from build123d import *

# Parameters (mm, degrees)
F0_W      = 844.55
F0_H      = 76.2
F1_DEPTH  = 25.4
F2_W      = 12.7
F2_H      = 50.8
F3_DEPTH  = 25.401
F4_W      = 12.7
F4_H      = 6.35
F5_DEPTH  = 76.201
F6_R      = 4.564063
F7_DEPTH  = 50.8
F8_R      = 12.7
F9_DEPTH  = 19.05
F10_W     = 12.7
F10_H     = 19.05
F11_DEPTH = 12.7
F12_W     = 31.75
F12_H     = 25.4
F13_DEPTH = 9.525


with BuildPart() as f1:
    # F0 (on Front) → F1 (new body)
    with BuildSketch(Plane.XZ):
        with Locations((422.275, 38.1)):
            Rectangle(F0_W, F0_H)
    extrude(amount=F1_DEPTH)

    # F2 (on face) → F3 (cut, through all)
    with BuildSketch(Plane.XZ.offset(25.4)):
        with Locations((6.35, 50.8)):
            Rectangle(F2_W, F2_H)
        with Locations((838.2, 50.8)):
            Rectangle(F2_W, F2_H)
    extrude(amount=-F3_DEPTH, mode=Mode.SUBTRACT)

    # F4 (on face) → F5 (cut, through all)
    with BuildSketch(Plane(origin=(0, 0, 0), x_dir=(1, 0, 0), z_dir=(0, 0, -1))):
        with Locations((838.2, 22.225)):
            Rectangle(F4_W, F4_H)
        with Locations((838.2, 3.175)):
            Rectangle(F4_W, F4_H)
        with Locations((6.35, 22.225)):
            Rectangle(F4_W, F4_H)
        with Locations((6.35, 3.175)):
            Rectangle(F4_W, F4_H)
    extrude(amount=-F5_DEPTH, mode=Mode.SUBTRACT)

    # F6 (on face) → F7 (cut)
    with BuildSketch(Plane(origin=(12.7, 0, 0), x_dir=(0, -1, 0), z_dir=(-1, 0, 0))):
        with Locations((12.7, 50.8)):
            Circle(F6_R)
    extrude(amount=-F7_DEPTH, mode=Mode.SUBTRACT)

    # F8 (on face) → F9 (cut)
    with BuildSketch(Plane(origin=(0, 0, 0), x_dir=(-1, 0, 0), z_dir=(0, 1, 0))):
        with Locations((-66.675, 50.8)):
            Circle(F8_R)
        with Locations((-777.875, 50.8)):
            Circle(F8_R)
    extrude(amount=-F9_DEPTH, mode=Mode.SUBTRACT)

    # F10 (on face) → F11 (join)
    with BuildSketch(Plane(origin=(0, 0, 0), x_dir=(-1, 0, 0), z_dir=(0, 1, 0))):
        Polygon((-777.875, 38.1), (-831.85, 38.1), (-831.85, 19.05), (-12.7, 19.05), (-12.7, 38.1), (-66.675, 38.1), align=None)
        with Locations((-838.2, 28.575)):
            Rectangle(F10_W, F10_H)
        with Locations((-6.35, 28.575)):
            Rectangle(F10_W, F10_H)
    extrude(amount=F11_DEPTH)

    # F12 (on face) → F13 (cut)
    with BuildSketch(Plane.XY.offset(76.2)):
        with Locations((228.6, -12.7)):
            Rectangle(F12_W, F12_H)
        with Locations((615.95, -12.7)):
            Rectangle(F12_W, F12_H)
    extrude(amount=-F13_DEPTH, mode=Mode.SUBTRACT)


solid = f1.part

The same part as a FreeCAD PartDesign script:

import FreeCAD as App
import Part
import Sketcher

V = App.Vector
Q = App.Units.Quantity

doc = App.newDocument("Part")
params = doc.addObject("Spreadsheet::Sheet", "Params")
for row, (alias, value) in enumerate([
    ("sketch1_height", "3 in"),
    ("sketch1_width", "33.25 in"),
    ("pad1_length", "1 in"),
    ("sketch2_height", "2 in"),
    ("sketch2_width", "0.5 in"),
    ("sketch3_width", "0.5 in"),
    ("sketch3_height", "0.25 in"),
    ("sketch4_diameter", "0.359375 in"),
    ("pocket3_length", "2 in"),
    ("sketch5_diameter", "1 in"),
    ("pocket4_length", "0.75 in"),
    ("sketch6_width", "33.25 in"),
    ("sketch6_height", "0.75 in"),
    ("pad2_length", "0.5 in"),
    ("sketch7_height", "1 in"),
    ("sketch7_width", "1.25 in"),
    ("pocket5_length", "0.375 in"),
], start=1):
    params.set(f"A{row}", alias)
    params.set(f"B{row}", "=" + value)
    params.setAlias(f"B{row}", alias)

body = doc.addObject("PartDesign::Body", "Body")

# Sketch on XZ plane
sketch1 = body.newObject("Sketcher::SketchObject", "Sketch")
sketch1.AttachmentSupport = (doc.getObject("XZ_Plane"), [""])
sketch1.MapMode = "FlatFace"
sketch1.addGeometry([
    Part.LineSegment(V(0, 76, 0), V(0, 0, 0)),
    Part.LineSegment(V(0, 0, 0), V(845, 0, 0)),
    Part.LineSegment(V(845, 0, 0), V(845, 76, 0)),
    Part.LineSegment(V(845, 76, 0), V(0, 76, 0)),
], False)
sketch1.addConstraint([
    Sketcher.Constraint("Coincident", 0, 2, 1, 1),
    Sketcher.Constraint("Coincident", 1, 2, 2, 1),
    Sketcher.Constraint("Coincident", 2, 2, 3, 1),
    Sketcher.Constraint("Coincident", 3, 2, 0, 1),
    Sketcher.Constraint("Vertical", 0),
    Sketcher.Constraint("Horizontal", 1),
    Sketcher.Constraint("Vertical", 2),
    Sketcher.Constraint("Horizontal", 3),
    Sketcher.Constraint("Coincident", 0, 2, -1, 1),
    Sketcher.Constraint("DistanceY", 0, 2, 0, 1, Q("3 in")),
    Sketcher.Constraint("DistanceX", 1, 1, 1, 2, Q("33.25 in")),
])
sketch1.setExpression("Constraints[9]", "Params.sketch1_height")
sketch1.setExpression("Constraints[10]", "Params.sketch1_width")
pad1 = body.newObject("PartDesign::Pad", "Pad")
pad1.Profile = sketch1
pad1.setExpression("Length", "Params.pad1_length")

# Sketch on XZ plane
sketch2 = body.newObject("Sketcher::SketchObject", "Sketch001")
sketch2.AttachmentSupport = (doc.getObject("XZ_Plane"), [""])
sketch2.MapMode = "FlatFace"
sketch2.AttachmentOffset = App.Placement(V(0, 0, 1 * 25.4), App.Rotation())
sketch2.addGeometry([
    Part.LineSegment(V(0, 76, 0), V(0, 25, 0)),  # 0
    Part.LineSegment(V(0, 25, 0), V(13, 25, 0)),  # 1
    Part.LineSegment(V(13, 25, 0), V(13, 76, 0)),  # 2
    Part.LineSegment(V(13, 76, 0), V(0, 76, 0)),  # 3
    Part.LineSegment(V(832, 76, 0), V(832, 25, 0)),  # 4
    Part.LineSegment(V(832, 25, 0), V(845, 25, 0)),  # 5
    Part.LineSegment(V(845, 25, 0), V(845, 76, 0)),  # 6
    Part.LineSegment(V(845, 76, 0), V(832, 76, 0)),  # 7
], False)
sketch2.addConstraint([
    Sketcher.Constraint("Coincident", 0, 2, 1, 1),
    Sketcher.Constraint("Coincident", 1, 2, 2, 1),
    Sketcher.Constraint("Coincident", 2, 2, 3, 1),
    Sketcher.Constraint("Coincident", 3, 2, 0, 1),
    Sketcher.Constraint("Coincident", 4, 2, 5, 1),
    Sketcher.Constraint("Coincident", 5, 2, 6, 1),
    Sketcher.Constraint("Coincident", 6, 2, 7, 1),
    Sketcher.Constraint("Coincident", 7, 2, 4, 1),
    Sketcher.Constraint("Vertical", 0),
    Sketcher.Constraint("Horizontal", 1),
    Sketcher.Constraint("Vertical", 2),
    Sketcher.Constraint("Horizontal", 3),
    Sketcher.Constraint("Vertical", 4),
    Sketcher.Constraint("Horizontal", 5),
    Sketcher.Constraint("Vertical", 6),
    Sketcher.Constraint("Horizontal", 7),
    Sketcher.Constraint("PointOnObject", 0, 2, -2),
    Sketcher.Constraint("Horizontal", 1, 2, 4, 2),
    Sketcher.Constraint("Horizontal", 3, 2, 6, 2),
    Sketcher.Constraint("Equal", 3, 5),
    Sketcher.Constraint("DistanceY", 0, 2, 0, 1, Q("2 in")),
    Sketcher.Constraint("DistanceX", 1, 1, 1, 2, Q("0.5 in")),
    Sketcher.Constraint("DistanceY", -1, 1, 0, 2, Q("1 in")),
    Sketcher.Constraint("DistanceX", -1, 1, 4, 2, Q("32.75 in")),
])
sketch2.setExpression("Constraints[20]", "Params.sketch2_height")
sketch2.setExpression("Constraints[21]", "Params.sketch2_width")
pocket1 = body.newObject("PartDesign::Pocket", "Pocket")
pocket1.Profile = sketch2
pocket1.Type = "ThroughAll"

# Sketch on XY plane
sketch3 = body.newObject("Sketcher::SketchObject", "Sketch002")
sketch3.AttachmentSupport = (doc.getObject("XY_Plane"), [""])
sketch3.MapMode = "FlatFace"
sketch3.addGeometry([
    Part.LineSegment(V(832, -25, 0), V(832, -19, 0)),  # 0
    Part.LineSegment(V(832, -19, 0), V(845, -19, 0)),  # 1
    Part.LineSegment(V(845, -19, 0), V(845, -25, 0)),  # 2
    Part.LineSegment(V(845, -25, 0), V(832, -25, 0)),  # 3
    Part.LineSegment(V(832, -6, 0), V(832, 0, 0)),  # 4
    Part.LineSegment(V(832, 0, 0), V(845, 0, 0)),  # 5
    Part.LineSegment(V(845, 0, 0), V(845, -6, 0)),  # 6
    Part.LineSegment(V(845, -6, 0), V(832, -6, 0)),  # 7
    Part.LineSegment(V(0, -25, 0), V(0, -19, 0)),  # 8
    Part.LineSegment(V(0, -19, 0), V(13, -19, 0)),  # 9
    Part.LineSegment(V(13, -19, 0), V(13, -25, 0)),  # 10
    Part.LineSegment(V(13, -25, 0), V(0, -25, 0)),  # 11
    Part.LineSegment(V(0, -6, 0), V(0, 0, 0)),  # 12
    Part.LineSegment(V(0, 0, 0), V(13, 0, 0)),  # 13
    Part.LineSegment(V(13, 0, 0), V(13, -6, 0)),  # 14
    Part.LineSegment(V(13, -6, 0), V(0, -6, 0)),  # 15
], False)
sketch3.addConstraint([
    Sketcher.Constraint("Coincident", 0, 2, 1, 1),
    Sketcher.Constraint("Coincident", 1, 2, 2, 1),
    Sketcher.Constraint("Coincident", 2, 2, 3, 1),
    Sketcher.Constraint("Coincident", 3, 2, 0, 1),
    Sketcher.Constraint("Coincident", 4, 2, 5, 1),
    Sketcher.Constraint("Coincident", 5, 2, 6, 1),
    Sketcher.Constraint("Coincident", 6, 2, 7, 1),
    Sketcher.Constraint("Coincident", 7, 2, 4, 1),
    Sketcher.Constraint("Coincident", 8, 2, 9, 1),
    Sketcher.Constraint("Coincident", 9, 2, 10, 1),
    Sketcher.Constraint("Coincident", 10, 2, 11, 1),
    Sketcher.Constraint("Coincident", 11, 2, 8, 1),
    Sketcher.Constraint("Coincident", 12, 2, 13, 1),
    Sketcher.Constraint("Coincident", 13, 2, 14, 1),
    Sketcher.Constraint("Coincident", 14, 2, 15, 1),
    Sketcher.Constraint("Coincident", 15, 2, 12, 1),
    Sketcher.Constraint("Vertical", 0),
    Sketcher.Constraint("Horizontal", 1),
    Sketcher.Constraint("Vertical", 2),
    Sketcher.Constraint("Horizontal", 3),
    Sketcher.Constraint("Vertical", 4),
    Sketcher.Constraint("Horizontal", 5),
    Sketcher.Constraint("Vertical", 6),
    Sketcher.Constraint("Horizontal", 7),
    Sketcher.Constraint("Vertical", 8),
    Sketcher.Constraint("Horizontal", 9),
    Sketcher.Constraint("Vertical", 10),
    Sketcher.Constraint("Horizontal", 11),
    Sketcher.Constraint("Vertical", 12),
    Sketcher.Constraint("Horizontal", 13),
    Sketcher.Constraint("Vertical", 14),
    Sketcher.Constraint("Horizontal", 15),
    Sketcher.Constraint("Coincident", 12, 2, -1, 1),
    Sketcher.Constraint("PointOnObject", 4, 2, -1),
    Sketcher.Constraint("PointOnObject", 8, 2, -2),
    Sketcher.Constraint("Horizontal", 1, 2, 8, 2),
    Sketcher.Constraint("Horizontal", 3, 2, 10, 2),
    Sketcher.Constraint("Horizontal", 7, 2, 14, 2),
    Sketcher.Constraint("Vertical", 3, 2, 4, 2),
    Sketcher.Constraint("Vertical", 2, 2, 5, 2),
    Sketcher.Constraint("Vertical", 10, 2, 13, 2),
    Sketcher.Constraint("Equal", 7, 9),
    Sketcher.Constraint("Equal", 2, 4),
    Sketcher.Constraint("DistanceX", 1, 1, 1, 2, Q("0.5 in")),
    Sketcher.Constraint("DistanceY", 2, 2, -1, 1, Q("1 in")),
    Sketcher.Constraint("DistanceY", 0, 1, 0, 2, Q("0.25 in")),
    Sketcher.Constraint("DistanceX", -1, 1, 0, 2, Q("32.75 in")),
])
sketch3.setExpression("Constraints[43]", "Params.sketch3_width")
sketch3.setExpression("Constraints[45]", "Params.sketch3_height")
pocket2 = body.newObject("PartDesign::Pocket", "Pocket001")
pocket2.Profile = sketch3
pocket2.Type = "ThroughAll"
pocket2.Reversed = True

# Sketch on YZ plane
sketch4 = body.newObject("Sketcher::SketchObject", "Sketch003")
sketch4.AttachmentSupport = (doc.getObject("YZ_Plane"), [""])
sketch4.MapMode = "FlatFace"
sketch4.AttachmentOffset = App.Placement(V(0, 0, 0.5 * 25.4), App.Rotation())
sketch4.addGeometry(Part.Circle(V(-12.7, 50.8, 0), V(0, 0, 1), 4.6), False)
sketch4.addConstraint([
    Sketcher.Constraint("Diameter", 0, Q("0.359375 in")),
    Sketcher.Constraint("DistanceY", -1, 1, 0, 3, Q("2 in")),
    Sketcher.Constraint("DistanceX", 0, 3, -1, 1, Q("0.5 in")),
])
sketch4.setExpression("Constraints[0]", "Params.sketch4_diameter")
pocket3 = body.newObject("PartDesign::Pocket", "Pocket002")
pocket3.Profile = sketch4
pocket3.setExpression("Length", "Params.pocket3_length")
pocket3.Reversed = True

# Sketch on XZ plane
sketch5 = body.newObject("Sketcher::SketchObject", "Sketch004")
sketch5.AttachmentSupport = (doc.getObject("XZ_Plane"), [""])
sketch5.MapMode = "FlatFace"
sketch5.addGeometry([
    Part.Circle(V(67, 51, 0), V(0, 0, 1), 13),
    Part.Circle(V(778, 51, 0), V(0, 0, 1), 13),
], False)
sketch5.addConstraint([
    Sketcher.Constraint("Equal", 0, 1),
    Sketcher.Constraint("Horizontal", 0, 3, 1, 3),
    Sketcher.Constraint("Diameter", 0, Q("1 in")),
    Sketcher.Constraint("DistanceY", -1, 1, 0, 3, Q("2 in")),
    Sketcher.Constraint("DistanceX", 0, 3, 1, 3, Q("28 in")),
    Sketcher.Constraint("DistanceX", -1, 1, 0, 3, Q("2.625 in")),
])
sketch5.setExpression("Constraints[2]", "Params.sketch5_diameter")
pocket4 = body.newObject("PartDesign::Pocket", "Pocket003")
pocket4.Profile = sketch5
pocket4.setExpression("Length", "Params.pocket4_length")
pocket4.Reversed = True

# Sketch on XZ plane
sketch6 = body.newObject("Sketcher::SketchObject", "Sketch005")
sketch6.AttachmentSupport = (doc.getObject("XZ_Plane"), [""])
sketch6.MapMode = "FlatFace"
sketch6.addGeometry([
    Part.LineSegment(V(845, 38, 0), V(845, 19, 0)),
    Part.LineSegment(V(845, 19, 0), V(0, 19, 0)),
    Part.LineSegment(V(0, 19, 0), V(0, 38, 0)),
    Part.LineSegment(V(0, 38, 0), V(845, 38, 0)),
], False)
sketch6.addConstraint([
    Sketcher.Constraint("Coincident", 0, 2, 1, 1),
    Sketcher.Constraint("Coincident", 1, 2, 2, 1),
    Sketcher.Constraint("Coincident", 2, 2, 3, 1),
    Sketcher.Constraint("Coincident", 3, 2, 0, 1),
    Sketcher.Constraint("Vertical", 0),
    Sketcher.Constraint("Horizontal", 1),
    Sketcher.Constraint("Vertical", 2),
    Sketcher.Constraint("Horizontal", 3),
    Sketcher.Constraint("PointOnObject", 1, 2, -2),
    Sketcher.Constraint("DistanceX", 1, 2, 1, 1, Q("33.25 in")),
    Sketcher.Constraint("DistanceY", 0, 2, 0, 1, Q("0.75 in")),
    Sketcher.Constraint("DistanceY", -1, 1, 2, 2, Q("1.5 in")),
])
sketch6.setExpression("Constraints[9]", "Params.sketch6_width")
sketch6.setExpression("Constraints[10]", "Params.sketch6_height")
pad2 = body.newObject("PartDesign::Pad", "Pad001")
pad2.Profile = sketch6
pad2.setExpression("Length", "Params.pad2_length")
pad2.Reversed = True

# Sketch on XY plane
sketch7 = body.newObject("Sketcher::SketchObject", "Sketch006")
sketch7.AttachmentSupport = (doc.getObject("XY_Plane"), [""])
sketch7.MapMode = "FlatFace"
sketch7.AttachmentOffset = App.Placement(V(0, 0, 3 * 25.4), App.Rotation())
sketch7.addGeometry([
    Part.LineSegment(V(213, 0, 0), V(213, -25, 0)),  # 0
    Part.LineSegment(V(213, -25, 0), V(244, -25, 0)),  # 1
    Part.LineSegment(V(244, -25, 0), V(244, 0, 0)),  # 2
    Part.LineSegment(V(244, 0, 0), V(213, 0, 0)),  # 3
    Part.LineSegment(V(600, 0, 0), V(600, -25, 0)),  # 4
    Part.LineSegment(V(600, -25, 0), V(632, -25, 0)),  # 5
    Part.LineSegment(V(632, -25, 0), V(632, 0, 0)),  # 6
    Part.LineSegment(V(632, 0, 0), V(600, 0, 0)),  # 7
], False)
sketch7.addConstraint([
    Sketcher.Constraint("Coincident", 0, 2, 1, 1),
    Sketcher.Constraint("Coincident", 1, 2, 2, 1),
    Sketcher.Constraint("Coincident", 2, 2, 3, 1),
    Sketcher.Constraint("Coincident", 3, 2, 0, 1),
    Sketcher.Constraint("Coincident", 4, 2, 5, 1),
    Sketcher.Constraint("Coincident", 5, 2, 6, 1),
    Sketcher.Constraint("Coincident", 6, 2, 7, 1),
    Sketcher.Constraint("Coincident", 7, 2, 4, 1),
    Sketcher.Constraint("Vertical", 0),
    Sketcher.Constraint("Horizontal", 1),
    Sketcher.Constraint("Vertical", 2),
    Sketcher.Constraint("Horizontal", 3),
    Sketcher.Constraint("Vertical", 4),
    Sketcher.Constraint("Horizontal", 5),
    Sketcher.Constraint("Vertical", 6),
    Sketcher.Constraint("Horizontal", 7),
    Sketcher.Constraint("PointOnObject", 2, 2, -1),
    Sketcher.Constraint("PointOnObject", 6, 2, -1),
    Sketcher.Constraint("Horizontal", 1, 2, 4, 2),
    Sketcher.Constraint("Equal", 3, 5),
    Sketcher.Constraint("DistanceY", 0, 2, 0, 1, Q("1 in")),
    Sketcher.Constraint("DistanceX", 1, 2, 4, 2, Q("14 in")),
    Sketcher.Constraint("DistanceX", 1, 1, 1, 2, Q("1.25 in")),
    Sketcher.Constraint("DistanceX", -1, 1, 0, 2, Q("8.375 in")),
])
sketch7.setExpression("Constraints[20]", "Params.sketch7_height")
sketch7.setExpression("Constraints[22]", "Params.sketch7_width")
pocket5 = body.newObject("PartDesign::Pocket", "Pocket004")
pocket5.Profile = sketch7
pocket5.setExpression("Length", "Params.pocket5_length")

doc.recompute()
